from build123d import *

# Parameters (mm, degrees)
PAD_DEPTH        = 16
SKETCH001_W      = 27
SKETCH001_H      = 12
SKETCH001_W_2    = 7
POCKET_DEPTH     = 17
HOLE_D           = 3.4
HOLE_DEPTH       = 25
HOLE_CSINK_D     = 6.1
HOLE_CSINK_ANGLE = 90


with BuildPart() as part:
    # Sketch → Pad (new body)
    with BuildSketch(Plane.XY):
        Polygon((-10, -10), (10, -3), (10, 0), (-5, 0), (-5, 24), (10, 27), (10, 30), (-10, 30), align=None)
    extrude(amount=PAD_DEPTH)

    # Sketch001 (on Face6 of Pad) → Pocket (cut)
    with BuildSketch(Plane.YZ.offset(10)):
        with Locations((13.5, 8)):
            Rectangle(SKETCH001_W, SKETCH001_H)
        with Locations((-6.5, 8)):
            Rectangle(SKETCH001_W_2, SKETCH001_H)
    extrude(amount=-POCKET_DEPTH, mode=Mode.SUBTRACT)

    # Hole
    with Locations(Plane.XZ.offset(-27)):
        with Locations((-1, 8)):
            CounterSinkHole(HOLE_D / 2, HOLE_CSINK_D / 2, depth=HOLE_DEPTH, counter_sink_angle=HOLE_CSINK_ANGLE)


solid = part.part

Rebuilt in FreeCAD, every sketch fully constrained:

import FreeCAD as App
import Part
import Sketcher
Q = App.Units.Quantity


def add_polygon(sketch, points):
    """Adds a closed chain of lines whose ends are joined by coincident constraints."""
    first, n = sketch.GeometryCount, len(points)
    for a, b in zip(points, points[1:] + points[:1]):
        sketch.addGeometry(Part.LineSegment(App.Vector(*a, 0), App.Vector(*b, 0)), False)
    for i in range(n):
        sketch.addConstraint(Sketcher.Constraint("Coincident", first + i, 2, first + (i + 1) % n, 1))

doc = App.newDocument("Part")
body = doc.addObject("PartDesign::Body", "Body")

sketch1 = body.newObject("Sketcher::SketchObject", "Sketch")
sketch1.AttachmentSupport = (doc.getObject("XY_Plane"), [""])
sketch1.MapMode = "FlatFace"
add_polygon(sketch1, [(-10, -10), (10, -3), (10, 0), (-5, 0), (-5, 24), (10, 27), (10, 30), (-10, 30)])
sketch1.addConstraint([
    Sketcher.Constraint("Vertical", 1),
    Sketcher.Constraint("Horizontal", 2),
    Sketcher.Constraint("Vertical", 3),
    Sketcher.Constraint("Vertical", 5),
    Sketcher.Constraint("Horizontal", 6),
    Sketcher.Constraint("Vertical", 7),
    Sketcher.Constraint("PointOnObject", 1, 2, -1),
    Sketcher.Constraint("Vertical", 1, 2, 4, 2),
    Sketcher.Constraint("Equal", 1, 5),
    Sketcher.Constraint("DistanceX", 2, 2, 2, 1, Q("15 mm")),
    Sketcher.Constraint("DistanceX", 6, 2, 6, 1, Q("20 mm")),
    Sketcher.Constraint("DistanceY", 1, 1, 1, 2, Q("3 mm")),
    Sketcher.Constraint("DistanceY", 3, 1, 3, 2, Q("24 mm")),
    Sketcher.Constraint("DistanceY", 7, 2, 7, 1, Q("40 mm")),
    Sketcher.Constraint("DistanceX", -1, 1, 0, 2, Q("10 mm")),
    Sketcher.Constraint("DistanceY", -1, 1, 4, 2, Q("27 mm")),
])
pad1 = body.newObject("PartDesign::Pad", "Pad")
pad1.Profile = sketch1
pad1.Length = 16

sketch2 = body.newObject("Sketcher::SketchObject", "Sketch001")
sketch2.AttachmentSupport = (doc.getObject("YZ_Plane"), [""])
sketch2.MapMode = "FlatFace"
sketch2.AttachmentOffset = App.Placement(App.Vector(0, 0, 10), App.Rotation())
add_polygon(sketch2, [(0, 14), (0, 2), (27, 2), (27, 14)])
add_polygon(sketch2, [(-10, 14), (-10, 2), (-3, 2), (-3, 14)])
sketch2.addConstraint([
    Sketcher.Constraint("Vertical", 0),
    Sketcher.Constraint("Horizontal", 1),
    Sketcher.Constraint("Vertical", 2),
    Sketcher.Constraint("Horizontal", 3),
    Sketcher.Constraint("Vertical", 4),
    Sketcher.Constraint("Horizontal", 5),
    Sketcher.Constraint("Vertical", 6),
    Sketcher.Constraint("Horizontal", 7),
    Sketcher.Constraint("PointOnObject", 0, 2, -2),
    Sketcher.Constraint("Horizontal", 1, 2, 4, 2),
    Sketcher.Constraint("Horizontal", 3, 2, 6, 2),
    Sketcher.Constraint("DistanceX", 1, 1, 1, 2, Q("27 mm")),
    Sketcher.Constraint("DistanceX", 5, 1, 5, 2, Q("7 mm")),
    Sketcher.Constraint("DistanceY", 0, 2, 0, 1, Q("12 mm")),
    Sketcher.Constraint("DistanceY", -1, 1, 0, 2, Q("2 mm")),
    Sketcher.Constraint("DistanceX", 4, 2, -1, 1, Q("10 mm")),
])
pocket1 = body.newObject("PartDesign::Pocket", "Pocket")
pocket1.Profile = sketch2
pocket1.Length = 17

sketch3 = body.newObject("Sketcher::SketchObject", "Sketch002")
sketch3.AttachmentSupport = (doc.getObject("XZ_Plane"), [""])
sketch3.MapMode = "FlatFace"
sketch3.AttachmentOffset = App.Placement(App.Vector(0, 0, -27), App.Rotation())
sketch3.addGeometry(Part.Circle(App.Vector(-1, 8, 0), App.Vector(0, 0, 1), 1.7), False)
sketch3.addConstraint([
    Sketcher.Constraint("Diameter", 0, Q("3.4 mm")),
    Sketcher.Constraint("DistanceX", 0, 3, -1, 1, Q("1 mm")),
    Sketcher.Constraint("DistanceY", -1, 1, 0, 3, Q("8 mm")),
])
doc.recompute()
hole = body.newObject("PartDesign::Hole", "Hole")
hole.Profile = sketch3
hole.ThreadType = "None"
hole.Diameter = 3.4
hole.DepthType = "Dimension"
hole.Depth = 25
hole.DrillPoint = "Flat"
hole.HoleCutType = "Countersink"
hole.HoleCutDiameter = 6.1
hole.HoleCutCountersinkAngle = 90

doc.recompute()
